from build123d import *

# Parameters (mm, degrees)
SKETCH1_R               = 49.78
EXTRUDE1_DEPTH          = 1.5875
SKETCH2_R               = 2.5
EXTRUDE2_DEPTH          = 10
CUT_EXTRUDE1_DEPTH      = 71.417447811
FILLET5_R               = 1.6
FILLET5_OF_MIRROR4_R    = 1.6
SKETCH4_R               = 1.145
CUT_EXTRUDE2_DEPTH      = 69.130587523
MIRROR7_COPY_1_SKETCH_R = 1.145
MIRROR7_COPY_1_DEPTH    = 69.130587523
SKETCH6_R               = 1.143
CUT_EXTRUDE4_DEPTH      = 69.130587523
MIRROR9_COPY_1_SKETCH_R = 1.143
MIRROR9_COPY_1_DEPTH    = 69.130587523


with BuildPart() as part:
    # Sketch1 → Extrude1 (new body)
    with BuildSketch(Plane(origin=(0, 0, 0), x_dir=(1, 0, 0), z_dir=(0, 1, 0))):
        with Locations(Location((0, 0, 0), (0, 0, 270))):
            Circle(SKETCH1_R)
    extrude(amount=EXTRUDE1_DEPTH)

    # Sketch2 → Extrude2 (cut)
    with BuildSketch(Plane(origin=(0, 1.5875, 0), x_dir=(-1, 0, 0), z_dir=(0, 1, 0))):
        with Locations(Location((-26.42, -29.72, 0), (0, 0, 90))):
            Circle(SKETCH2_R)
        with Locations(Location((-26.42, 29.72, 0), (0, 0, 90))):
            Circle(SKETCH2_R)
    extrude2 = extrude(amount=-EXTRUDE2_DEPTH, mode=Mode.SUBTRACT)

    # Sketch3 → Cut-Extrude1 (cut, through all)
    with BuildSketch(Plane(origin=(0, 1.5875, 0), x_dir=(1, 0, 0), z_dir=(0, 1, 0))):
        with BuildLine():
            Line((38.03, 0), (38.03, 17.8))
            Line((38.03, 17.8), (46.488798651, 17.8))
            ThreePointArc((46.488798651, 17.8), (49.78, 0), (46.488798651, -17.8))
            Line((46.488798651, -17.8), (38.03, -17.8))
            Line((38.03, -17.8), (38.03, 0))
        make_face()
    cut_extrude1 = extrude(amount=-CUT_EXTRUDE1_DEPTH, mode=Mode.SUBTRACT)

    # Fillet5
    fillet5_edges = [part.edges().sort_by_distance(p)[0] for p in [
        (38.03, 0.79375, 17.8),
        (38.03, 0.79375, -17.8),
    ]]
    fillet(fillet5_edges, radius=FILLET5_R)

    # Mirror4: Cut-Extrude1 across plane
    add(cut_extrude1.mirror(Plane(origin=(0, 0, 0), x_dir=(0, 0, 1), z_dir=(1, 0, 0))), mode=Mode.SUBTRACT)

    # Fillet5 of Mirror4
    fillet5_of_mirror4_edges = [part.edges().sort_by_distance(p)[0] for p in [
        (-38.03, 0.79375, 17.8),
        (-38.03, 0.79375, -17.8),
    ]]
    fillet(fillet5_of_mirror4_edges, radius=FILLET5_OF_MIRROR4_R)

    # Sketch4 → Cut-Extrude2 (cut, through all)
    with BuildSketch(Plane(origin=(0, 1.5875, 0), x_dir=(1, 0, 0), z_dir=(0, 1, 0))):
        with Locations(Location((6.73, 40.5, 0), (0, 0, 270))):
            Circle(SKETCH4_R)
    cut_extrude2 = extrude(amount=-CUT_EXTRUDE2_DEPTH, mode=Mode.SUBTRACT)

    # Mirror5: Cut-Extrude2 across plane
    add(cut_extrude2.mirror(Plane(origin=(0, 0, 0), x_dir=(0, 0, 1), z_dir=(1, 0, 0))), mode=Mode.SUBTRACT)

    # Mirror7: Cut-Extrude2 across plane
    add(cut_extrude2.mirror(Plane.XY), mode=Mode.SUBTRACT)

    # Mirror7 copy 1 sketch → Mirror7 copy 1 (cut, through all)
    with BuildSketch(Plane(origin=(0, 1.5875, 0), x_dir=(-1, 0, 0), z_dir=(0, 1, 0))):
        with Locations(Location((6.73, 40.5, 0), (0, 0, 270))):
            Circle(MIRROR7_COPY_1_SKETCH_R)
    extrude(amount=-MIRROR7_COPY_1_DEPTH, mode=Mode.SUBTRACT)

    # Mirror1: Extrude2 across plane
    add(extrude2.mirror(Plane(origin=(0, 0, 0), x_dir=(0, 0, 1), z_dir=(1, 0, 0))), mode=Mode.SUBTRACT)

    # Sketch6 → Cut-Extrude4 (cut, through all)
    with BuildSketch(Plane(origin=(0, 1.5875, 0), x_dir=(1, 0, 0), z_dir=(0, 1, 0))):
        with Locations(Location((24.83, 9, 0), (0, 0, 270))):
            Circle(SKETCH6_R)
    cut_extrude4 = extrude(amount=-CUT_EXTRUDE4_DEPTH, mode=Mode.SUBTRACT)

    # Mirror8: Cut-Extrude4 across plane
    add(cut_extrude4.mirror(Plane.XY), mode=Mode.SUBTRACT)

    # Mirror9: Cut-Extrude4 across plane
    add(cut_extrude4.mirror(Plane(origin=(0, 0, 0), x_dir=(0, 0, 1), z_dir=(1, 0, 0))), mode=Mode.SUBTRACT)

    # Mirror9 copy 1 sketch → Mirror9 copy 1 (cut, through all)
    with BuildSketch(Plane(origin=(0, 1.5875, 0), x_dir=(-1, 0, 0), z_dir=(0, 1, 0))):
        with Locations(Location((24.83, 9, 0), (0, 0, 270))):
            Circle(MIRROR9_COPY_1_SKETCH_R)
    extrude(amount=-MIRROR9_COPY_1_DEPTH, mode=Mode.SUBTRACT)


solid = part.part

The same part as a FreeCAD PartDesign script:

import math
import FreeCAD as App
import Part
import Sketcher

V = App.Vector
Q = App.Units.Quantity


def edges_at(feature, points):
    """Names of the edges that pass closest to the given points."""
    edges = feature.Shape.Edges
    near = lambda p: min(range(len(edges)), key=lambda i: edges[i].distToShape(Part.Vertex(*p))[0])
    return sorted({f"Edge{near(p) + 1}" for p in points})

doc = App.newDocument("Part")
body = doc.addObject("PartDesign::Body", "Body")

sketch1 = doc.addObject("Sketcher::SketchObject", "Sketch")
body.addObject(sketch1)
sketch1.AttachmentSupport = (doc.XZ_Plane, [""])
sketch1.MapMode = "FlatFace"
sketch1.addGeometry(Part.Circle(V(0, 0, 0), V(0, 0, 1), 50), False)
sketch1.addConstraint([
    Sketcher.Constraint("Coincident", 0, 3, -1, 1),
    Sketcher.Constraint("Diameter", 0, Q("99.56 mm")),
])
pad1 = doc.addObject("PartDesign::Pad", "Pad")
body.addObject(pad1)
pad1.Profile = sketch1
pad1.Length = 1.5875
pad1.Reversed = True

sketch2 = doc.addObject("Sketcher::SketchObject", "Sketch001")
body.addObject(sketch2)
sketch2.AttachmentSupport = (doc.XZ_Plane, [""])
sketch2.MapMode = "FlatFace"
sketch2.AttachmentOffset = App.Placement(V(0, 0, -1.5875), App.Rotation())
sketch2.addGeometry([
    Part.Circle(V(26.4, -29.7, 0), V(0, 0, 1), 2.5),
    Part.Circle(V(26.4, 29.7, 0), V(0, 0, 1), 2.5),
], False)
sketch2.addConstraint([
    Sketcher.Constraint("Equal", 0, 1),
    Sketcher.Constraint("Symmetric", 0, 3, 1, 3, -1),
    Sketcher.Constraint("Diameter", 0, Q("5 mm")),
    Sketcher.Constraint("DistanceX", -1, 1, 0, 3, Q("26.42 mm")),
    Sketcher.Constraint("DistanceY", 0, 3, -1, 1, Q("29.72 mm")),
])
pocket1 = doc.addObject("PartDesign::Pocket", "Pocket")
body.addObject(pocket1)
pocket1.Profile = sketch2
pocket1.Length = 10
pocket1.Reversed = True

sketch3 = doc.addObject("Sketcher::SketchObject", "Sketch002")
body.addObject(sketch3)
sketch3.AttachmentSupport = (doc.XZ_Plane, [""])
sketch3.MapMode = "FlatFace"
sketch3.AttachmentOffset = App.Placement(V(0, 0, -1.5875), App.Rotation())
sketch3.addGeometry([
    Part.LineSegment(V(46, -18, 0), V(38, -18, 0)),
    Part.LineSegment(V(38, -18, 0), V(38, 18, 0)),
    Part.LineSegment(V(38, 18, 0), V(46, 18, 0)),
    Part.ArcOfCircle(Part.Circle(V(0, 0, 0), V(0, 0, 1), 50), math.radians(-21), math.radians(21)),
], False)
sketch3.addConstraint([
    Sketcher.Constraint("Coincident", 0, 2, 1, 1),
    Sketcher.Constraint("Coincident", 1, 2, 2, 1),
    Sketcher.Constraint("Coincident", 2, 2, 3, 2),
    Sketcher.Constraint("Coincident", 3, 1, 0, 1),
    Sketcher.Constraint("Horizontal", 0),
    Sketcher.Constraint("Vertical", 1),
    Sketcher.Constraint("Horizontal", 2),
    Sketcher.Constraint("Coincident", 3, 3, -1, 1),
    Sketcher.Constraint("Vertical", 2, 2, 3, 1),
    Sketcher.Constraint("Radius", 3, Q("49.78 mm")),
    Sketcher.Constraint("DistanceY", 1, 1, 1, 2, Q("35.6 mm")),
    Sketcher.Constraint("DistanceX", -1, 1, 0, 2, Q("38.03 mm")),
])
pocket2 = doc.addObject("PartDesign::Pocket", "Pocket001")
body.addObject(pocket2)
pocket2.Profile = sketch3
pocket2.Type = "ThroughAll"
pocket2.Reversed = True
doc.recompute()

fillet = doc.addObject("PartDesign::Fillet", "Fillet")
body.addObject(fillet)
fillet.Base = (pocket2, edges_at(pocket2, [(38.03, 0.794, 17.8), (38.03, 0.794, -17.8)]))
fillet.Radius = 1.6
doc.recompute()

mirrored = doc.addObject("PartDesign::Mirrored", "Mirrored")
body.addObject(mirrored)
mirrored.Originals = [pocket2]
mirrored.MirrorPlane = (doc.YZ_Plane, [""])
body.Tip = mirrored
doc.recompute()

fillet2 = doc.addObject("PartDesign::Fillet", "Fillet001")
body.addObject(fillet2)
fillet2.Base = (mirrored, edges_at(mirrored, [(-38.03, 0.794, 17.8), (-38.03, 0.794, -17.8)]))
fillet2.Radius = 1.6

sketch4 = doc.addObject("Sketcher::SketchObject", "Sketch003")
body.addObject(sketch4)
sketch4.AttachmentSupport = (doc.XZ_Plane, [""])
sketch4.MapMode = "FlatFace"
sketch4.AttachmentOffset = App.Placement(V(0, 0, -1.5875), App.Rotation())
sketch4.addGeometry(Part.Circle(V(6.7, -40.5, 0), V(0, 0, 1), 1.1), False)
sketch4.addConstraint([
    Sketcher.Constraint("Diameter", 0, Q("2.29 mm")),
    Sketcher.Constraint("DistanceY", 0, 3, -1, 1, Q("40.5 mm")),
    Sketcher.Constraint("DistanceX", -1, 1, 0, 3, Q("6.73 mm")),
])
pocket3 = doc.addObject("PartDesign::Pocket", "Pocket002")
body.addObject(pocket3)
pocket3.Profile = sketch4
pocket3.Type = "ThroughAll"
pocket3.Reversed = True
doc.recompute()

mirrored2 = doc.addObject("PartDesign::Mirrored", "Mirrored001")
body.addObject(mirrored2)
mirrored2.Originals = [pocket3]
mirrored2.MirrorPlane = (doc.YZ_Plane, [""])
body.Tip = mirrored2
doc.recompute()

mirrored3 = doc.addObject("PartDesign::Mirrored", "Mirrored002")
body.addObject(mirrored3)
mirrored3.Originals = [pocket3]
mirrored3.MirrorPlane = (doc.XY_Plane, [""])
body.Tip = mirrored3

sketch5 = doc.addObject("Sketcher::SketchObject", "Sketch004")
body.addObject(sketch5)
sketch5.AttachmentSupport = (doc.XZ_Plane, [""])
sketch5.MapMode = "FlatFace"
sketch5.AttachmentOffset = App.Placement(V(0, 0, -1.5875), App.Rotation())
sketch5.addGeometry(Part.Circle(V(-6.7, 40.5, 0), V(0, 0, 1), 1.1), False)
sketch5.addConstraint([
    Sketcher.Constraint("Diameter", 0, Q("2.29 mm")),
    Sketcher.Constraint("DistanceY", -1, 1, 0, 3, Q("40.5 mm")),
    Sketcher.Constraint("DistanceX", 0, 3, -1, 1, Q("6.73 mm")),
])
pocket4 = doc.addObject("PartDesign::Pocket", "Pocket003")
body.addObject(pocket4)
pocket4.Profile = sketch5
pocket4.Type = "ThroughAll"
pocket4.Reversed = True
doc.recompute()

mirrored4 = doc.addObject("PartDesign::Mirrored", "Mirrored003")
body.addObject(mirrored4)
mirrored4.Originals = [pocket1]
mirrored4.MirrorPlane = (doc.YZ_Plane, [""])
body.Tip = mirrored4

sketch6 = doc.addObject("Sketcher::SketchObject", "Sketch005")
body.addObject(sketch6)
sketch6.AttachmentSupport = (doc.XZ_Plane, [""])
sketch6.MapMode = "FlatFace"
sketch6.AttachmentOffset = App.Placement(V(0, 0, -1.5875), App.Rotation())
sketch6.addGeometry(Part.Circle(V(24.8, -9, 0), V(0, 0, 1), 1.1), False)
sketch6.addConstraint([
    Sketcher.Constraint("Diameter", 0, Q("2.286 mm")),
    Sketcher.Constraint("DistanceY", 0, 3, -1, 1, Q("9 mm")),
    Sketcher.Constraint("DistanceX", -1, 1, 0, 3, Q("24.83 mm")),
])
pocket5 = doc.addObject("PartDesign::Pocket", "Pocket004")
body.addObject(pocket5)
pocket5.Profile = sketch6
pocket5.Type = "ThroughAll"
pocket5.Reversed = True
doc.recompute()

mirrored5 = doc.addObject("PartDesign::Mirrored", "Mirrored004")
body.addObject(mirrored5)
mirrored5.Originals = [pocket5]
mirrored5.MirrorPlane = (doc.XY_Plane, [""])
body.Tip = mirrored5
doc.recompute()

mirrored6 = doc.addObject("PartDesign::Mirrored", "Mirrored005")
body.addObject(mirrored6)
mirrored6.Originals = [pocket5]
mirrored6.MirrorPlane = (doc.YZ_Plane, [""])
body.Tip = mirrored6

sketch7 = doc.addObject("Sketcher::SketchObject", "Sketch006")
body.addObject(sketch7)
sketch7.AttachmentSupport = (doc.XZ_Plane, [""])
sketch7.MapMode = "FlatFace"
sketch7.AttachmentOffset = App.Placement(V(0, 0, -1.5875), App.Rotation())
sketch7.addGeometry(Part.Circle(V(-24.8, 9, 0), V(0, 0, 1), 1.1), False)
sketch7.addConstraint([
    Sketcher.Constraint("Diameter", 0, Q("2.286 mm")),
    Sketcher.Constraint("DistanceY", -1, 1, 0, 3, Q("9 mm")),
    Sketcher.Constraint("DistanceX", 0, 3, -1, 1, Q("24.83 mm")),
])
pocket6 = doc.addObject("PartDesign::Pocket", "Pocket005")
body.addObject(pocket6)
pocket6.Profile = sketch7
pocket6.Type = "ThroughAll"
pocket6.Reversed = True

doc.recompute()
